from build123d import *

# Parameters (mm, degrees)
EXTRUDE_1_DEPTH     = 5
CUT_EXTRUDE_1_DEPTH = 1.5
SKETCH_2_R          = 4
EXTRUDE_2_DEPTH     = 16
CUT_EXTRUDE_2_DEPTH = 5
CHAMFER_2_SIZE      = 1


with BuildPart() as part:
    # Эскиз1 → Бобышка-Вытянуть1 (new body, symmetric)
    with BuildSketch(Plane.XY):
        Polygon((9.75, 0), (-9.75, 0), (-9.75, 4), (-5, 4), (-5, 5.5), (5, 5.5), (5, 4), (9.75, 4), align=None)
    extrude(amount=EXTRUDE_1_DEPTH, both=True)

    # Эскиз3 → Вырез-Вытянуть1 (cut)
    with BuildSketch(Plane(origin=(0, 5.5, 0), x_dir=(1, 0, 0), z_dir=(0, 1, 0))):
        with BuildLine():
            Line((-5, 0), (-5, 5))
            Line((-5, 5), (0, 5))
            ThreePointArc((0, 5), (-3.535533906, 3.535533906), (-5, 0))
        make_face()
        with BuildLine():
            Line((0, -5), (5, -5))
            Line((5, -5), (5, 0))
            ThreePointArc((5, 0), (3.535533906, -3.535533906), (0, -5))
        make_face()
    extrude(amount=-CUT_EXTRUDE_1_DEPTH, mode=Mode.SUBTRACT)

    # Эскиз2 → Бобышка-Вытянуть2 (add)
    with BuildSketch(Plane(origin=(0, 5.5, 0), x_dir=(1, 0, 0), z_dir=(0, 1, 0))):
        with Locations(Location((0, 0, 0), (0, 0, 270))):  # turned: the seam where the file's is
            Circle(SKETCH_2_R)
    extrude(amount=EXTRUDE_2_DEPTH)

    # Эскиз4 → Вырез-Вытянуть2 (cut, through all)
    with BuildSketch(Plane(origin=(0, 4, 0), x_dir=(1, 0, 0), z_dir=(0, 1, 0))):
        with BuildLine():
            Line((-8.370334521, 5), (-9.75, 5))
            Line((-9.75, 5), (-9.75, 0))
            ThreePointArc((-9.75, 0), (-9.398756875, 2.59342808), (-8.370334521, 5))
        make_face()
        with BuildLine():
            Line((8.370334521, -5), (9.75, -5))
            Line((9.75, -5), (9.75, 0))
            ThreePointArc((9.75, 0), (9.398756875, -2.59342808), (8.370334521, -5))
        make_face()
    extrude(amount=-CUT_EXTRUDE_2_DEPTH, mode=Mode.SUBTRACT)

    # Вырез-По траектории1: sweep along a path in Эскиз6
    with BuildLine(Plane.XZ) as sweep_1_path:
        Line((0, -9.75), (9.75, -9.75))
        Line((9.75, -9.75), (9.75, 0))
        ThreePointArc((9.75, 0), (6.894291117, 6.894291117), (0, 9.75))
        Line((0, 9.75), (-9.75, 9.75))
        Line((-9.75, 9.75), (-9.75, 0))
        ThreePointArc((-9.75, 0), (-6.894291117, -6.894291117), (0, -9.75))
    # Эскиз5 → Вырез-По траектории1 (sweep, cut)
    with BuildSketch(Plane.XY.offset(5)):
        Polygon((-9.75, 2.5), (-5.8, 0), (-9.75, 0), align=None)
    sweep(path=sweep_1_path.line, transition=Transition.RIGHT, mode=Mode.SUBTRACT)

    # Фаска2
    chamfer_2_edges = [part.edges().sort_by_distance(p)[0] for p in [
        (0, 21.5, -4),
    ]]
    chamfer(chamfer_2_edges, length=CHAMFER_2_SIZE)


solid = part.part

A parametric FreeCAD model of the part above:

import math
import FreeCAD as App
import Part
import Sketcher

V = App.Vector


def edges_at(feature, points):
    """Names of the edges that pass closest to the given points."""
    edges = feature.Shape.Edges
    near = lambda p: min(range(len(edges)), key=lambda i: edges[i].distToShape(Part.Vertex(*p))[0])
    return sorted({f"Edge{near(p) + 1}" for p in points})


def add_polygon(sketch, points):
    """Adds a closed chain of lines whose ends are joined by coincident constraints."""
    first, n = sketch.GeometryCount, len(points)
    for a, b in zip(points, points[1:] + points[:1]):
        sketch.addGeometry(Part.LineSegment(App.Vector(*a, 0), App.Vector(*b, 0)), False)
    for i in range(n):
        sketch.addConstraint(Sketcher.Constraint("Coincident", first + i, 2, first + (i + 1) % n, 1))

doc = App.newDocument("Part")
body = doc.addObject("PartDesign::Body", "Body")

sketch1 = body.newObject("Sketcher::SketchObject", "Sketch")
sketch1.AttachmentSupport = (doc.getObject("XY_Plane"), [""])
sketch1.MapMode = "FlatFace"
add_polygon(sketch1, [(-9.8, 0), (9.8, 0), (9.8, 4), (5, 4), (5, 5.5), (-5, 5.5), (-5, 4), (-9.8, 4)])
sketch1.addConstraint([
    Sketcher.Constraint("Horizontal", 0),
    Sketcher.Constraint("Vertical", 1),
    Sketcher.Constraint("Horizontal", 2),
    Sketcher.Constraint("Vertical", 3),
    Sketcher.Constraint("Horizontal", 4),
    Sketcher.Constraint("Vertical", 5),
    Sketcher.Constraint("Horizontal", 6),
    Sketcher.Constraint("Vertical", 7),
    Sketcher.Constraint("Symmetric", 0, 2, 7, 2, -1, 1),
    Sketcher.Constraint("Symmetric", 2, 2, 5, 2, -2),
    Sketcher.Constraint("DistanceX", 4, 2, 4, 1, 10.0),
    Sketcher.Constraint("DistanceY", 1, 1, 1, 2, 4.0),
    Sketcher.Constraint("DistanceX", 0, 1, 0, 2, 19.5),
    Sketcher.Constraint("DistanceY", 3, 1, 3, 2, 1.5),
])
pad1 = body.newObject("PartDesign::Pad", "Pad")
pad1.Profile = sketch1
pad1.Length = 10
pad1.Midplane = True

sketch2 = body.newObject("Sketcher::SketchObject", "Sketch001")
sketch2.AttachmentSupport = (doc.getObject("XZ_Plane"), [""])
sketch2.MapMode = "FlatFace"
sketch2.AttachmentOffset = App.Placement(V(0, 0, -5.5), App.Rotation())
sketch2.addGeometry([
    Part.LineSegment(V(-5, -5, 0), V(-5, 0, 0)),
    Part.ArcOfCircle(Part.Circle(V(0, 0, 0), V(0, 0, 1), 5), math.radians(180), math.radians(270)),
    Part.LineSegment(V(0, -5, 0), V(-5, -5, 0)),
    Part.LineSegment(V(0, 5, 0), V(5, 5, 0)),
    Part.LineSegment(V(5, 5, 0), V(5, 0, 0)),
    Part.ArcOfCircle(Part.Circle(V(0, 0, 0), V(0, 0, 1), 5), math.radians(0), math.radians(90)),
], False)
sketch2.addConstraint([
    Sketcher.Constraint("Tangent", 0, 2, 1, 1),
    Sketcher.Constraint("Tangent", 1, 2, 2, 1),
    Sketcher.Constraint("Coincident", 2, 2, 0, 1),
    Sketcher.Constraint("Coincident", 3, 2, 4, 1),
    Sketcher.Constraint("Tangent", 4, 2, 5, 1),
    Sketcher.Constraint("Tangent", 5, 2, 3, 1),
    Sketcher.Constraint("Vertical", 0),
    Sketcher.Constraint("Horizontal", 2),
    Sketcher.Constraint("Horizontal", 3),
    Sketcher.Constraint("Vertical", 4),
    Sketcher.Constraint("Coincident", 1, 3, -1, 1),
    Sketcher.Constraint("Coincident", 5, 3, -1, 1),
    Sketcher.Constraint("Equal", 1, 5),
    Sketcher.Constraint("Radius", 1, 5.0),
])
pocket1 = body.newObject("PartDesign::Pocket", "Pocket")
pocket1.Profile = sketch2
pocket1.Length = 1.5
pocket1.Reversed = True

sketch3 = body.newObject("Sketcher::SketchObject", "Sketch002")
sketch3.AttachmentSupport = (doc.getObject("XZ_Plane"), [""])
sketch3.MapMode = "FlatFace"
sketch3.AttachmentOffset = App.Placement(V(0, 0, -5.5), App.Rotation())
sketch3.addGeometry(Part.Circle(V(0, 0, 0), V(0, 0, 1), 4), False)
sketch3.addConstraint([
    Sketcher.Constraint("Coincident", 0, 3, -1, 1),
    Sketcher.Constraint("Diameter", 0, 8.0),
])
pad2 = body.newObject("PartDesign::Pad", "Pad001")
pad2.Profile = sketch3
pad2.Length = 16
pad2.Reversed = True

sketch4 = body.newObject("Sketcher::SketchObject", "Sketch003")
sketch4.AttachmentSupport = (doc.getObject("XZ_Plane"), [""])
sketch4.MapMode = "FlatFace"
sketch4.AttachmentOffset = App.Placement(V(0, 0, -4), App.Rotation())
sketch4.addGeometry([
    Part.LineSegment(V(-8.4, -5, 0), V(-9.8, -5, 0)),
    Part.LineSegment(V(-9.8, -5, 0), V(-9.8, 0, 0)),
    Part.ArcOfCircle(Part.Circle(V(0, 0, 0), V(0, 0, 1), 9.7), math.radians(180), math.radians(211)),
    Part.LineSegment(V(8.4, 5, 0), V(9.8, 5, 0)),
    Part.LineSegment(V(9.8, 5, 0), V(9.8, 0, 0)),
    Part.ArcOfCircle(Part.Circle(V(0, 0, 0), V(0, 0, 1), 9.7), math.radians(0), math.radians(31)),
], False)
sketch4.addConstraint([
    Sketcher.Constraint("Coincident", 0, 2, 1, 1),
    Sketcher.Constraint("Tangent", 1, 2, 2, 1),
    Sketcher.Constraint("Coincident", 2, 2, 0, 1),
    Sketcher.Constraint("Coincident", 3, 2, 4, 1),
    Sketcher.Constraint("Tangent", 4, 2, 5, 1),
    Sketcher.Constraint("Coincident", 5, 2, 3, 1),
    Sketcher.Constraint("Horizontal", 0),
    Sketcher.Constraint("Vertical", 1),
    Sketcher.Constraint("Horizontal", 3),
    Sketcher.Constraint("Vertical", 4),
    Sketcher.Constraint("Coincident", 2, 3, -1, 1),
    Sketcher.Constraint("Coincident", 5, 3, -1, 1),
    Sketcher.Constraint("Equal", 2, 5),
    Sketcher.Constraint("Equal", 0, 3),
    Sketcher.Constraint("DistanceY", 1, 1, 1, 2, 5.0),
    Sketcher.Constraint("Radius", 2, 9.75),
])
pocket2 = body.newObject("PartDesign::Pocket", "Pocket001")
pocket2.Profile = sketch4
pocket2.Type = "ThroughAll"
pocket2.Reversed = True

sketch5 = body.newObject("Sketcher::SketchObject", "Sketch004")
sketch5.AttachmentSupport = (doc.getObject("XY_Plane"), [""])
sketch5.MapMode = "FlatFace"
sketch5.AttachmentOffset = App.Placement(V(0, 0, 5), App.Rotation())
add_polygon(sketch5, [(-5.8, 0), (-9.8, 2.5), (-9.8, 0)])
sketch5.addConstraint([
    Sketcher.Constraint("Vertical", 1),
    Sketcher.Constraint("Horizontal", 2),
    Sketcher.Constraint("PointOnObject", 1, 2, -1),
    Sketcher.Constraint("DistanceY", 1, 2, 1, 1, 2.5),
    Sketcher.Constraint("DistanceX", 2, 1, 2, 2, 3.95),
    Sketcher.Constraint("DistanceX", 2, 2, -1, 1, 5.8),
])

sketch6 = body.newObject("Sketcher::SketchObject", "Sketch005")
sketch6.AttachmentSupport = (doc.getObject("XZ_Plane"), [""])
sketch6.MapMode = "FlatFace"
sketch6.addGeometry([
    Part.LineSegment(V(0, -10, 0), V(10, -10, 0)),
    Part.LineSegment(V(10, -10, 0), V(10, 0, 0)),
    Part.ArcOfCircle(Part.Circle(V(0, 0, 0), V(0, 0, 1), 10), math.radians(0), math.radians(90)),
    Part.LineSegment(V(0, 10, 0), V(-10, 10, 0)),
    Part.LineSegment(V(-10, 10, 0), V(-10, 0, 0)),
    Part.ArcOfCircle(Part.Circle(V(0, 0, 0), V(0, 0, 1), 10), math.radians(180), math.radians(270)),
], False)
sketch6.addConstraint([
    Sketcher.Constraint("Coincident", 0, 2, 1, 1),
    Sketcher.Constraint("Tangent", 1, 2, 2, 1),
    Sketcher.Constraint("Tangent", 2, 2, 3, 1),
    Sketcher.Constraint("Coincident", 3, 2, 4, 1),
    Sketcher.Constraint("Tangent", 4, 2, 5, 1),
    Sketcher.Constraint("Tangent", 5, 2, 0, 1),
    Sketcher.Constraint("Horizontal", 0),
    Sketcher.Constraint("Vertical", 1),
    Sketcher.Constraint("Horizontal", 3),
    Sketcher.Constraint("Vertical", 4),
    Sketcher.Constraint("Coincident", 2, 3, -1, 1),
    Sketcher.Constraint("Coincident", 5, 3, -1, 1),
    Sketcher.Constraint("Equal", 2, 5),
    Sketcher.Constraint("Radius", 2, 9.75),
])
doc.recompute()

subtractivepipe = body.newObject("PartDesign::SubtractivePipe", "SubtractivePipe")
subtractivepipe.Profile = sketch5
subtractivepipe.Spine = (sketch6, ["Edge1", "Edge2", "Edge3", "Edge4", "Edge5", "Edge6"])
subtractivepipe.Transition = "Right corner"
doc.recompute()

chamfer = body.newObject("PartDesign::Chamfer", "Chamfer")
chamfer.Base = (subtractivepipe, edges_at(subtractivepipe, [(0, 21.5, -4)]))
chamfer.Size = 1

doc.recompute()
